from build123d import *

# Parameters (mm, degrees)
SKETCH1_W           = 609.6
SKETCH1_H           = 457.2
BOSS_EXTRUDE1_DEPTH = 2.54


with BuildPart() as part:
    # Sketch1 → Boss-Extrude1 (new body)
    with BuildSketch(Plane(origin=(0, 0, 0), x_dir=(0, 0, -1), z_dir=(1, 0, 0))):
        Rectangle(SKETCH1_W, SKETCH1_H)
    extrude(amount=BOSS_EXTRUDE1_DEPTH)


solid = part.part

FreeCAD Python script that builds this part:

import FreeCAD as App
import Part
import Sketcher
from FreeCAD import Vector
Q = App.Units.Quantity

doc = App.newDocument("Part")
body = doc.addObject("PartDesign::Body", "Body")

sketch1 = body.newObject("Sketcher::SketchObject", "Sketch")
sketch1.AttachmentSupport = (doc.getObject("YZ_Plane"), [""])
sketch1.MapMode = "FlatFace"
sketch1.addGeometry([
    Part.LineSegment(Vector(229, 305, 0), Vector(-229, 305, 0)),
    Part.LineSegment(Vector(-229, 305, 0), Vector(-229, -305, 0)),
    Part.LineSegment(Vector(-229, -305, 0), Vector(229, -305, 0)),
    Part.LineSegment(Vector(229, -305, 0), Vector(229, 305, 0)),
], False)
sketch1.addConstraint([
    Sketcher.Constraint("Coincident", 0, 2, 1, 1),
    Sketcher.Constraint("Coincident", 1, 2, 2, 1),
    Sketcher.Constraint("Coincident", 2, 2, 3, 1),
    Sketcher.Constraint("Coincident", 3, 2, 0, 1),
    Sketcher.Constraint("Horizontal", 0),
    Sketcher.Constraint("Vertical", 1),
    Sketcher.Constraint("Horizontal", 2),
    Sketcher.Constraint("Vertical", 3),
    Sketcher.Constraint("Symmetric", 0, 2, 2, 2, -1, 1),
    Sketcher.Constraint("DistanceX", 0, 2, 0, 1, Q("18 in")),
    Sketcher.Constraint("DistanceY", 1, 2, 1, 1, Q("24 in")),
])
pad1 = body.newObject("PartDesign::Pad", "Pad")
pad1.Profile = sketch1
pad1.Length = Q("0.1 in")

doc.recompute()
